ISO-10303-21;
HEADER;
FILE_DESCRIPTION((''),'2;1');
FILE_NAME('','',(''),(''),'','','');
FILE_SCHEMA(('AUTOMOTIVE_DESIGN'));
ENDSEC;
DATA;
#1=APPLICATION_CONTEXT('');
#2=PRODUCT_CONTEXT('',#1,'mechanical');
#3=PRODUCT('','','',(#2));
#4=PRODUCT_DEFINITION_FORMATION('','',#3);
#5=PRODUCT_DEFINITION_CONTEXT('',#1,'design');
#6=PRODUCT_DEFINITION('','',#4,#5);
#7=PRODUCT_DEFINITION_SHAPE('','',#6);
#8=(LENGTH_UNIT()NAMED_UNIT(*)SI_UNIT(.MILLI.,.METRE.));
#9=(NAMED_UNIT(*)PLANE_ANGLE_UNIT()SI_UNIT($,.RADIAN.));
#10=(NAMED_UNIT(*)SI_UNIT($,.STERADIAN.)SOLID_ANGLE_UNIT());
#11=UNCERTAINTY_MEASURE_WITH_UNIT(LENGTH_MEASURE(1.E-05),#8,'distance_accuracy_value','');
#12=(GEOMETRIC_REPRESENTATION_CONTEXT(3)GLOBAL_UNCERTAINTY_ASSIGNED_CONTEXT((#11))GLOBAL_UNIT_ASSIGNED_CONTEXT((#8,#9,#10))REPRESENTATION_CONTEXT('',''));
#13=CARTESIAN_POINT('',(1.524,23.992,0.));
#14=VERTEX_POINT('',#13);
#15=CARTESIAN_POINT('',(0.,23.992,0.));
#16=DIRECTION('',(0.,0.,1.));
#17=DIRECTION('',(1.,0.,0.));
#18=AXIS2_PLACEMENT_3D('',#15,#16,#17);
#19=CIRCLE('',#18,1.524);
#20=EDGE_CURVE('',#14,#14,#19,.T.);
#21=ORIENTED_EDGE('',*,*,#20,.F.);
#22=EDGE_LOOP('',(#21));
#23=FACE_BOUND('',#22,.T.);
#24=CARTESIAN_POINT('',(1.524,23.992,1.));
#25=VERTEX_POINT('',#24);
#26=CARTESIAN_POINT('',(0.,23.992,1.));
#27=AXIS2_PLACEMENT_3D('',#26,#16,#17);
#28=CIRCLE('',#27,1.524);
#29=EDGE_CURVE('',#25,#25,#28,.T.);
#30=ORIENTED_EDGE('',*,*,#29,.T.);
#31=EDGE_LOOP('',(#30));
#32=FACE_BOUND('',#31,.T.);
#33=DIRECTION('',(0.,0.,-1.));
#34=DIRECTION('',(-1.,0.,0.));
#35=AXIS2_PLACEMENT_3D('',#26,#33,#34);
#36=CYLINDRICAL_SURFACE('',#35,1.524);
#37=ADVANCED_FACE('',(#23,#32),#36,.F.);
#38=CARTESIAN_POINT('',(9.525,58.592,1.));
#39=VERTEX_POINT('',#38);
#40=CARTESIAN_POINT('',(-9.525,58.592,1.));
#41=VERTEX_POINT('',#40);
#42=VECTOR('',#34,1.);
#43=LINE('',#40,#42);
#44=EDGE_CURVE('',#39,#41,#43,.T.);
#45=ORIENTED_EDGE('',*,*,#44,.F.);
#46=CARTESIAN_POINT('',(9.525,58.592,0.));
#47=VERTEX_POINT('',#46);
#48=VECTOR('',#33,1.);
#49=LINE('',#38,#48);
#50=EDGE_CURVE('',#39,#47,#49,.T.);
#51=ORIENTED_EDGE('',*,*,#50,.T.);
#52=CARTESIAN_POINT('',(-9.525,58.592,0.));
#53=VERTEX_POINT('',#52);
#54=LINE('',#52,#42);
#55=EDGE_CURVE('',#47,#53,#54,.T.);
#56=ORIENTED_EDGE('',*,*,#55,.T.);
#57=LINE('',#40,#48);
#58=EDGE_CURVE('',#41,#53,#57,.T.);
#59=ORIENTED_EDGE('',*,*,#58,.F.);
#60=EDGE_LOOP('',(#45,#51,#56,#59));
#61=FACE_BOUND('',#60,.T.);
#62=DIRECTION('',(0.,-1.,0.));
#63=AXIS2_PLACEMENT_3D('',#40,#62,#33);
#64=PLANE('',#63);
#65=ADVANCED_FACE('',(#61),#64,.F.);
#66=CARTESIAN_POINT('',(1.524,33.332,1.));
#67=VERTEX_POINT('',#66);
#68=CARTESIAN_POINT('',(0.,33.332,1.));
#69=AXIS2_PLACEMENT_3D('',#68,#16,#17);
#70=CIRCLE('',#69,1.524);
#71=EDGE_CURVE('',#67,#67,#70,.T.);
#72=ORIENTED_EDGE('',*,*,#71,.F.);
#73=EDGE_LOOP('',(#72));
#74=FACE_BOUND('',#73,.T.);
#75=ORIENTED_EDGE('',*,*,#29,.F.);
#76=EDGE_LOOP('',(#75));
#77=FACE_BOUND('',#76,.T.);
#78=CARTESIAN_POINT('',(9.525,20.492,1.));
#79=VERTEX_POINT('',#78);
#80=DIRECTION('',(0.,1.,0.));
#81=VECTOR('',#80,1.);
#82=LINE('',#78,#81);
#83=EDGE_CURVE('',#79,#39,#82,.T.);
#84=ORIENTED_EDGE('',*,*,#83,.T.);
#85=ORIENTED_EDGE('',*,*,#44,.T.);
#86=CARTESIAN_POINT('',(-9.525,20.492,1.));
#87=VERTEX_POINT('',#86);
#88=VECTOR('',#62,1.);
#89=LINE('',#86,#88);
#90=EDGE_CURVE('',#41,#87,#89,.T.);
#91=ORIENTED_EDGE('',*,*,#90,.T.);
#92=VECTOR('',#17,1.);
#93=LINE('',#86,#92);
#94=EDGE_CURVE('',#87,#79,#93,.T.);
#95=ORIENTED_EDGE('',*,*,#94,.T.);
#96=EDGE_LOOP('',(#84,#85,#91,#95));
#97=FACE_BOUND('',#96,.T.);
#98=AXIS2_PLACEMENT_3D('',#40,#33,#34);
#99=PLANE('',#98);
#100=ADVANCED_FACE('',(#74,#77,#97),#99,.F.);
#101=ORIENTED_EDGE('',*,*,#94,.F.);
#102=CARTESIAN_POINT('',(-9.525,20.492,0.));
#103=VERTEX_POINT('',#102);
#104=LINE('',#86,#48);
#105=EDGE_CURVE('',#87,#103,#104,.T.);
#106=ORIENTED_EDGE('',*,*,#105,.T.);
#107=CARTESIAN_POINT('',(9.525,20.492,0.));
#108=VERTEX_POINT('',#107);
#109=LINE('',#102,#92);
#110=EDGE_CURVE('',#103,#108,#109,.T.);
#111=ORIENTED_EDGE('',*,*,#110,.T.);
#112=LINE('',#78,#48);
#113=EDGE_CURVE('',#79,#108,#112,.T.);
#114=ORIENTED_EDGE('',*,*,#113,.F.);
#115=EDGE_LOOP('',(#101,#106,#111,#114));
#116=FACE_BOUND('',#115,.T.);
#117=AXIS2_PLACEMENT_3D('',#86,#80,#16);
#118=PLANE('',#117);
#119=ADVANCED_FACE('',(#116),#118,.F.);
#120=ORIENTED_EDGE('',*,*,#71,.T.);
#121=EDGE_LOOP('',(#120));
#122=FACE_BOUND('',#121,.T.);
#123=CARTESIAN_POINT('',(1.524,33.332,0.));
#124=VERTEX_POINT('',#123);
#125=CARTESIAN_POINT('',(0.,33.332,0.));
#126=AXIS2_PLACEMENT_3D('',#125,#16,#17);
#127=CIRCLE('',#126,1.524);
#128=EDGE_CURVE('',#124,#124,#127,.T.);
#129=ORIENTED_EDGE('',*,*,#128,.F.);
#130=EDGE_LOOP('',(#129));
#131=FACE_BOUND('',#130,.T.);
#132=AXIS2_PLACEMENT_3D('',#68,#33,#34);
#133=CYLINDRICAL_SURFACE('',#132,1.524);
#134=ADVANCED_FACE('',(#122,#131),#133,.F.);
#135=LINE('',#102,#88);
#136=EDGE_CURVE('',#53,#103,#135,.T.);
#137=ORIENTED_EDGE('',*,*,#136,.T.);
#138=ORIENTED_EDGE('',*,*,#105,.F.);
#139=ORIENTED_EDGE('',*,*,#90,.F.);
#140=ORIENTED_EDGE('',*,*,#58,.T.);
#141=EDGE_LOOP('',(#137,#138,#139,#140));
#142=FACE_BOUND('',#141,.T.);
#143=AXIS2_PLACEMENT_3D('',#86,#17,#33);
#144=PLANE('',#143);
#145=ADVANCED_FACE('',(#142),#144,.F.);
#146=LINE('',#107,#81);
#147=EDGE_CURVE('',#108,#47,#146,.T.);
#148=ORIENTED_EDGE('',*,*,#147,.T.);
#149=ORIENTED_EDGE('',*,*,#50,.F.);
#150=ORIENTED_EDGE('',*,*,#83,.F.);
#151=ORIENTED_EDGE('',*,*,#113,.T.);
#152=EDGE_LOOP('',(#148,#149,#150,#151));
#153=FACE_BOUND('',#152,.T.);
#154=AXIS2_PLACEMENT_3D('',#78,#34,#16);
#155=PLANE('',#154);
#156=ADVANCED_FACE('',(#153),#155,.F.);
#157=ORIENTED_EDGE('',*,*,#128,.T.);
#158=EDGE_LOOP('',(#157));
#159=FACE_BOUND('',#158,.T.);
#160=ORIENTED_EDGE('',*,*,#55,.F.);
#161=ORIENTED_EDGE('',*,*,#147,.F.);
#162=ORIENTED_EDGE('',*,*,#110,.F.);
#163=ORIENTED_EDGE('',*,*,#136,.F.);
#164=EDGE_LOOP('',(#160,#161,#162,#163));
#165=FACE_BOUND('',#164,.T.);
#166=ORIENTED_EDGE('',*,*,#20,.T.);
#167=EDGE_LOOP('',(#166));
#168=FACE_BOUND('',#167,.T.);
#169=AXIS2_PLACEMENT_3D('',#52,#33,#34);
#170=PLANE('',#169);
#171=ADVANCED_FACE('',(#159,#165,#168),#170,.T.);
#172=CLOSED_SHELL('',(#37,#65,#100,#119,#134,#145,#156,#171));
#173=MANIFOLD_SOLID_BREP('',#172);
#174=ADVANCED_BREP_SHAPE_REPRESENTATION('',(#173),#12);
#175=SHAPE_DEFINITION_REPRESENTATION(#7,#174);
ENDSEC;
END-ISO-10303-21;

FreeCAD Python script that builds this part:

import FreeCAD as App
import Part
import Sketcher
Q = App.Units.Quantity

doc = App.newDocument("Part")
body = doc.addObject("PartDesign::Body", "Body")

sketch1 = doc.addObject("Sketcher::SketchObject", "Sketch")
body.addObject(sketch1)
sketch1.AttachmentSupport = (doc.XY_Plane, [""])
sketch1.MapMode = "FlatFace"
sketch1.addGeometry(Part.LineSegment(App.Vector(-9.525, 58.592, 0), App.Vector(-9.525, 20.492, 0)), False)
sketch1.addGeometry(Part.LineSegment(App.Vector(-9.525, 20.492, 0), App.Vector(9.525, 20.492, 0)), False)
sketch1.addGeometry(Part.LineSegment(App.Vector(9.525, 20.492, 0), App.Vector(9.525, 58.592, 0)), False)
sketch1.addGeometry(Part.LineSegment(App.Vector(9.525, 58.592, 0), App.Vector(-9.525, 58.592, 0)), False)
sketch1.addGeometry(Part.Circle(App.Vector(0, 23.992, 0), App.Vector(0, 0, 1), 1.524), False)
sketch1.addGeometry(Part.Circle(App.Vector(0, 33.332, 0), App.Vector(0, 0, 1), 1.524), False)
sketch1.addConstraint(Sketcher.Constraint("Coincident", 0, 2, 1, 1))
sketch1.addConstraint(Sketcher.Constraint("Coincident", 1, 2, 2, 1))
sketch1.addConstraint(Sketcher.Constraint("Coincident", 2, 2, 3, 1))
sketch1.addConstraint(Sketcher.Constraint("Coincident", 3, 2, 0, 1))
sketch1.addConstraint(Sketcher.Constraint("Vertical", 0))
sketch1.addConstraint(Sketcher.Constraint("Horizontal", 1))
sketch1.addConstraint(Sketcher.Constraint("Vertical", 2))
sketch1.addConstraint(Sketcher.Constraint("Horizontal", 3))
sketch1.addConstraint(Sketcher.Constraint("Equal", 4, 5))
sketch1.addConstraint(Sketcher.Constraint("PointOnObject", 4, 3, -2))
sketch1.addConstraint(Sketcher.Constraint("PointOnObject", 5, 3, -2))
sketch1.addConstraint(Sketcher.Constraint("Diameter", 4, Q("0.12 in")))
sketch1.addConstraint(Sketcher.Constraint("DistanceY", 0, 2, 0, 1, Q("1.5 in")))
sketch1.addConstraint(Sketcher.Constraint("DistanceX", 1, 1, 1, 2, Q("0.75 in")))
sketch1.addConstraint(Sketcher.Constraint("DistanceX", 0, 2, -1, 1, Q("0.375 in")))
sketch1.addConstraint(Sketcher.Constraint("DistanceY", -1, 1, 4, 3, Q("23.992 mm")))
sketch1.addConstraint(Sketcher.Constraint("DistanceY", -1, 1, 5, 3, Q("33.332 mm")))
sketch1.addConstraint(Sketcher.Constraint("DistanceY", -1, 1, 0, 2, Q("20.492 mm")))
pad1 = doc.addObject("PartDesign::Pad", "Pad")
body.addObject(pad1)
pad1.Profile = sketch1
pad1.Length = 1

doc.recompute()
